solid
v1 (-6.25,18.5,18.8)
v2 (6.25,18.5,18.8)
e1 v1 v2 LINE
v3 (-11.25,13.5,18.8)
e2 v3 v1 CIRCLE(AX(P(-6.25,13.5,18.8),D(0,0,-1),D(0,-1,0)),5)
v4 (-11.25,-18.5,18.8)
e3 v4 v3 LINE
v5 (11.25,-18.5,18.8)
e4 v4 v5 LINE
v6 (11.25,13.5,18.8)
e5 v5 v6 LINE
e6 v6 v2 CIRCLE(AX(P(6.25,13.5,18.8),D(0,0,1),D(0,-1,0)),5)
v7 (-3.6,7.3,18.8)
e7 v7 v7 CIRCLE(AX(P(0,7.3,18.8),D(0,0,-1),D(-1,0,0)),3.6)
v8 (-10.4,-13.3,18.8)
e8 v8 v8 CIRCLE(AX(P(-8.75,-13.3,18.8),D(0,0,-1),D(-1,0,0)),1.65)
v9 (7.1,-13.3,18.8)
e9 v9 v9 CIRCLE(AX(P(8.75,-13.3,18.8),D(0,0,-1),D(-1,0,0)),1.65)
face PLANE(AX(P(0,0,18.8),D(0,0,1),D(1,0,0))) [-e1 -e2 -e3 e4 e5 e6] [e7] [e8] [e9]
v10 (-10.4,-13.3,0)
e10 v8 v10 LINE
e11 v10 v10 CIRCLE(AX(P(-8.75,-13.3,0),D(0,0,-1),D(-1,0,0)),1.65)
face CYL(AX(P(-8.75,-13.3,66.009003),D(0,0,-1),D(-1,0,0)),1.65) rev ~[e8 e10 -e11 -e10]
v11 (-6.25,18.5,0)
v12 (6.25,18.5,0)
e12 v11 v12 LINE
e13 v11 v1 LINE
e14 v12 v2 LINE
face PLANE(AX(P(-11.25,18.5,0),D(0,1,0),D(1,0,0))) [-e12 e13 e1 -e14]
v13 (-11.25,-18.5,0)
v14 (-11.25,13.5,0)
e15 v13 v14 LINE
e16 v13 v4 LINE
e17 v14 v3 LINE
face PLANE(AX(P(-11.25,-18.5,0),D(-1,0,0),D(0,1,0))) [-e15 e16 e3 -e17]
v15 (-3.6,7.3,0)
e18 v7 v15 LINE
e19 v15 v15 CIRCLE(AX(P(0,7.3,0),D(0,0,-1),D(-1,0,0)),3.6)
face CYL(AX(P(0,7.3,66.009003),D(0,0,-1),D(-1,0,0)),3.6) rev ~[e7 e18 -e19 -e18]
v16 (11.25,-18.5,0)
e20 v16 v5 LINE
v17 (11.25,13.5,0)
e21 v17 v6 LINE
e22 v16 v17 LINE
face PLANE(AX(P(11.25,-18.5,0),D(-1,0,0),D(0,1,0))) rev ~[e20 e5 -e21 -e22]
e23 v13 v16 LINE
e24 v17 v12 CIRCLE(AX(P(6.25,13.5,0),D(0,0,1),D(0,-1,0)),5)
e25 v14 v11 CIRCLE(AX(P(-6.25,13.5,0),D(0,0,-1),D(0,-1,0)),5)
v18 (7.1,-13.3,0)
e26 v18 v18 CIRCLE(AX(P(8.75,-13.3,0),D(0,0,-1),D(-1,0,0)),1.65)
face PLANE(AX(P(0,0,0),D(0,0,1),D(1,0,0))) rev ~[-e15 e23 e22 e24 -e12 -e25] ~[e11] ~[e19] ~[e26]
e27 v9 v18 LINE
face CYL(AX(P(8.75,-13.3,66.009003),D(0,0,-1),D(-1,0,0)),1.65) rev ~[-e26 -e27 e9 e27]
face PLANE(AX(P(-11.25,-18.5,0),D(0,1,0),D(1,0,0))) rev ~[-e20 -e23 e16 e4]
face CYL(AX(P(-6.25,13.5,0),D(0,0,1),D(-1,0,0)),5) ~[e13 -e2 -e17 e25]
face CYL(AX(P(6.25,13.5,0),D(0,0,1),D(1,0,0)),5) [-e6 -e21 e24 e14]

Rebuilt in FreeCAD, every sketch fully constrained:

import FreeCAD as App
import Part
import Sketcher
from FreeCAD import Vector


def edges_at(feature, points):
    """Names of the edges that pass closest to the given points."""
    edges = feature.Shape.Edges
    near = lambda p: min(range(len(edges)), key=lambda i: edges[i].distToShape(Part.Vertex(*p))[0])
    return sorted({f"Edge{near(p) + 1}" for p in points})

doc = App.newDocument("Part")
body = doc.addObject("PartDesign::Body", "Body")

sketch1 = body.newObject("Sketcher::SketchObject", "Sketch")
sketch1.AttachmentSupport = (doc.getObject("XY_Plane"), [""])
sketch1.MapMode = "FlatFace"
sketch1.addGeometry([
    Part.LineSegment(Vector(-11, 18, 0), Vector(-11, -18, 0)),
    Part.LineSegment(Vector(-11, -18, 0), Vector(11, -18, 0)),
    Part.LineSegment(Vector(11, -18, 0), Vector(11, 18, 0)),
    Part.LineSegment(Vector(11, 18, 0), Vector(-11, 18, 0)),
], False)
sketch1.addConstraint([
    Sketcher.Constraint("Coincident", 0, 2, 1, 1),
    Sketcher.Constraint("Coincident", 1, 2, 2, 1),
    Sketcher.Constraint("Coincident", 2, 2, 3, 1),
    Sketcher.Constraint("Coincident", 3, 2, 0, 1),
    Sketcher.Constraint("Vertical", 0),
    Sketcher.Constraint("Horizontal", 1),
    Sketcher.Constraint("Vertical", 2),
    Sketcher.Constraint("Horizontal", 3),
    Sketcher.Constraint("Symmetric", 0, 2, 2, 2, -1, 1),
    Sketcher.Constraint("DistanceY", 0, 2, 0, 1, 37.0),
    Sketcher.Constraint("DistanceX", 1, 1, 1, 2, 22.5),
])
pad1 = body.newObject("PartDesign::Pad", "Pad")
pad1.Profile = sketch1
pad1.Length = 18.8
doc.recompute()

fillet = body.newObject("PartDesign::Fillet", "Fillet")
fillet.Base = (pad1, edges_at(pad1, [(11.25, 18.5, 9.4), (-11.25, 18.5, 9.4)]))
fillet.Radius = 5

sketch2 = body.newObject("Sketcher::SketchObject", "Sketch001")
sketch2.AttachmentSupport = (doc.getObject("XY_Plane"), [""])
sketch2.MapMode = "FlatFace"
sketch2.AttachmentOffset = App.Placement(Vector(0, 0, 18.8), App.Rotation())
sketch2.addGeometry([
    Part.Circle(Vector(-8.8, -13.3, 0), Vector(0, 0, 1), 1.6),
    Part.Circle(Vector(8.8, -13.3, 0), Vector(0, 0, 1), 1.6),
], False)
sketch2.addConstraint([
    Sketcher.Constraint("Equal", 0, 1),
    Sketcher.Constraint("Symmetric", 0, 3, 1, 3, -2),
    Sketcher.Constraint("Diameter", 0, 3.3),
    Sketcher.Constraint("DistanceY", 0, 3, -1, 1, 13.3),
    Sketcher.Constraint("DistanceX", 0, 3, 1, 3, 17.5),
])
doc.recompute()
hole = body.newObject("PartDesign::Hole", "Hole")
hole.Profile = sketch2
hole.ThreadType = "None"
hole.Diameter = 3.3
hole.DepthType = "ThroughAll"

sketch3 = body.newObject("Sketcher::SketchObject", "Sketch002")
sketch3.AttachmentSupport = (doc.getObject("XY_Plane"), [""])
sketch3.MapMode = "FlatFace"
sketch3.AttachmentOffset = App.Placement(Vector(0, 0, 18.8), App.Rotation())
sketch3.addGeometry(Part.Circle(Vector(0, 7.3, 0), Vector(0, 0, 1), 3.6), False)
sketch3.addConstraint([
    Sketcher.Constraint("PointOnObject", 0, 3, -2),
    Sketcher.Constraint("Diameter", 0, 7.2),
    Sketcher.Constraint("DistanceY", -1, 1, 0, 3, 7.3),
])
doc.recompute()
hole2 = body.newObject("PartDesign::Hole", "Hole001")
hole2.Profile = sketch3
hole2.ThreadType = "None"
hole2.Diameter = 7.2
hole2.DepthType = "ThroughAll"

doc.recompute()
